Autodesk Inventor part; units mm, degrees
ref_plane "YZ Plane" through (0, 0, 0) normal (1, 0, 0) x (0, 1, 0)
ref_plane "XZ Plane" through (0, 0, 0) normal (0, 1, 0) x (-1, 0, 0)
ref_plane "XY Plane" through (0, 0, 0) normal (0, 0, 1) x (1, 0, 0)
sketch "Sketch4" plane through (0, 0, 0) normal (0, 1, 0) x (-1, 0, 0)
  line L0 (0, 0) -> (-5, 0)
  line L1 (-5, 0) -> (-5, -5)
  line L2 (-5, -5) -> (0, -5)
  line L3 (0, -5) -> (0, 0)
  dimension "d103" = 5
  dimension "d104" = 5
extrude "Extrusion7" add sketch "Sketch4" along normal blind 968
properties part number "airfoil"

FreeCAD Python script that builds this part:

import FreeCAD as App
import Part
import Sketcher

V = App.Vector


def add_polygon(sketch, points):
    """Adds a closed chain of lines whose ends are joined by coincident constraints."""
    first, n = sketch.GeometryCount, len(points)
    for a, b in zip(points, points[1:] + points[:1]):
        sketch.addGeometry(Part.LineSegment(App.Vector(*a, 0), App.Vector(*b, 0)), False)
    for i in range(n):
        sketch.addConstraint(Sketcher.Constraint("Coincident", first + i, 2, first + (i + 1) % n, 1))

doc = App.newDocument("Part")
body = doc.addObject("PartDesign::Body", "Body")

# Sketch on XZ plane
sketch1 = body.newObject("Sketcher::SketchObject", "Sketch")
sketch1.AttachmentSupport = (doc.getObject("XZ_Plane"), [""])
sketch1.MapMode = "FlatFace"
add_polygon(sketch1, [(0, -5), (0, 0), (5, 0), (5, -5)])  # lines 0-3
sketch1.addConstraint([
    Sketcher.Constraint("Vertical", 0),
    Sketcher.Constraint("Horizontal", 1),
    Sketcher.Constraint("Vertical", 2),
    Sketcher.Constraint("Horizontal", 3),
    Sketcher.Constraint("Coincident", 0, 2, -1, 1),
    Sketcher.Constraint("Equal", 3, 0),
    Sketcher.Constraint("DistanceX", 1, 1, 1, 2, 5.0),
])
pad1 = body.newObject("PartDesign::Pad", "Pad")
pad1.Profile = sketch1
pad1.Length = 968
pad1.Reversed = True

doc.recompute()
